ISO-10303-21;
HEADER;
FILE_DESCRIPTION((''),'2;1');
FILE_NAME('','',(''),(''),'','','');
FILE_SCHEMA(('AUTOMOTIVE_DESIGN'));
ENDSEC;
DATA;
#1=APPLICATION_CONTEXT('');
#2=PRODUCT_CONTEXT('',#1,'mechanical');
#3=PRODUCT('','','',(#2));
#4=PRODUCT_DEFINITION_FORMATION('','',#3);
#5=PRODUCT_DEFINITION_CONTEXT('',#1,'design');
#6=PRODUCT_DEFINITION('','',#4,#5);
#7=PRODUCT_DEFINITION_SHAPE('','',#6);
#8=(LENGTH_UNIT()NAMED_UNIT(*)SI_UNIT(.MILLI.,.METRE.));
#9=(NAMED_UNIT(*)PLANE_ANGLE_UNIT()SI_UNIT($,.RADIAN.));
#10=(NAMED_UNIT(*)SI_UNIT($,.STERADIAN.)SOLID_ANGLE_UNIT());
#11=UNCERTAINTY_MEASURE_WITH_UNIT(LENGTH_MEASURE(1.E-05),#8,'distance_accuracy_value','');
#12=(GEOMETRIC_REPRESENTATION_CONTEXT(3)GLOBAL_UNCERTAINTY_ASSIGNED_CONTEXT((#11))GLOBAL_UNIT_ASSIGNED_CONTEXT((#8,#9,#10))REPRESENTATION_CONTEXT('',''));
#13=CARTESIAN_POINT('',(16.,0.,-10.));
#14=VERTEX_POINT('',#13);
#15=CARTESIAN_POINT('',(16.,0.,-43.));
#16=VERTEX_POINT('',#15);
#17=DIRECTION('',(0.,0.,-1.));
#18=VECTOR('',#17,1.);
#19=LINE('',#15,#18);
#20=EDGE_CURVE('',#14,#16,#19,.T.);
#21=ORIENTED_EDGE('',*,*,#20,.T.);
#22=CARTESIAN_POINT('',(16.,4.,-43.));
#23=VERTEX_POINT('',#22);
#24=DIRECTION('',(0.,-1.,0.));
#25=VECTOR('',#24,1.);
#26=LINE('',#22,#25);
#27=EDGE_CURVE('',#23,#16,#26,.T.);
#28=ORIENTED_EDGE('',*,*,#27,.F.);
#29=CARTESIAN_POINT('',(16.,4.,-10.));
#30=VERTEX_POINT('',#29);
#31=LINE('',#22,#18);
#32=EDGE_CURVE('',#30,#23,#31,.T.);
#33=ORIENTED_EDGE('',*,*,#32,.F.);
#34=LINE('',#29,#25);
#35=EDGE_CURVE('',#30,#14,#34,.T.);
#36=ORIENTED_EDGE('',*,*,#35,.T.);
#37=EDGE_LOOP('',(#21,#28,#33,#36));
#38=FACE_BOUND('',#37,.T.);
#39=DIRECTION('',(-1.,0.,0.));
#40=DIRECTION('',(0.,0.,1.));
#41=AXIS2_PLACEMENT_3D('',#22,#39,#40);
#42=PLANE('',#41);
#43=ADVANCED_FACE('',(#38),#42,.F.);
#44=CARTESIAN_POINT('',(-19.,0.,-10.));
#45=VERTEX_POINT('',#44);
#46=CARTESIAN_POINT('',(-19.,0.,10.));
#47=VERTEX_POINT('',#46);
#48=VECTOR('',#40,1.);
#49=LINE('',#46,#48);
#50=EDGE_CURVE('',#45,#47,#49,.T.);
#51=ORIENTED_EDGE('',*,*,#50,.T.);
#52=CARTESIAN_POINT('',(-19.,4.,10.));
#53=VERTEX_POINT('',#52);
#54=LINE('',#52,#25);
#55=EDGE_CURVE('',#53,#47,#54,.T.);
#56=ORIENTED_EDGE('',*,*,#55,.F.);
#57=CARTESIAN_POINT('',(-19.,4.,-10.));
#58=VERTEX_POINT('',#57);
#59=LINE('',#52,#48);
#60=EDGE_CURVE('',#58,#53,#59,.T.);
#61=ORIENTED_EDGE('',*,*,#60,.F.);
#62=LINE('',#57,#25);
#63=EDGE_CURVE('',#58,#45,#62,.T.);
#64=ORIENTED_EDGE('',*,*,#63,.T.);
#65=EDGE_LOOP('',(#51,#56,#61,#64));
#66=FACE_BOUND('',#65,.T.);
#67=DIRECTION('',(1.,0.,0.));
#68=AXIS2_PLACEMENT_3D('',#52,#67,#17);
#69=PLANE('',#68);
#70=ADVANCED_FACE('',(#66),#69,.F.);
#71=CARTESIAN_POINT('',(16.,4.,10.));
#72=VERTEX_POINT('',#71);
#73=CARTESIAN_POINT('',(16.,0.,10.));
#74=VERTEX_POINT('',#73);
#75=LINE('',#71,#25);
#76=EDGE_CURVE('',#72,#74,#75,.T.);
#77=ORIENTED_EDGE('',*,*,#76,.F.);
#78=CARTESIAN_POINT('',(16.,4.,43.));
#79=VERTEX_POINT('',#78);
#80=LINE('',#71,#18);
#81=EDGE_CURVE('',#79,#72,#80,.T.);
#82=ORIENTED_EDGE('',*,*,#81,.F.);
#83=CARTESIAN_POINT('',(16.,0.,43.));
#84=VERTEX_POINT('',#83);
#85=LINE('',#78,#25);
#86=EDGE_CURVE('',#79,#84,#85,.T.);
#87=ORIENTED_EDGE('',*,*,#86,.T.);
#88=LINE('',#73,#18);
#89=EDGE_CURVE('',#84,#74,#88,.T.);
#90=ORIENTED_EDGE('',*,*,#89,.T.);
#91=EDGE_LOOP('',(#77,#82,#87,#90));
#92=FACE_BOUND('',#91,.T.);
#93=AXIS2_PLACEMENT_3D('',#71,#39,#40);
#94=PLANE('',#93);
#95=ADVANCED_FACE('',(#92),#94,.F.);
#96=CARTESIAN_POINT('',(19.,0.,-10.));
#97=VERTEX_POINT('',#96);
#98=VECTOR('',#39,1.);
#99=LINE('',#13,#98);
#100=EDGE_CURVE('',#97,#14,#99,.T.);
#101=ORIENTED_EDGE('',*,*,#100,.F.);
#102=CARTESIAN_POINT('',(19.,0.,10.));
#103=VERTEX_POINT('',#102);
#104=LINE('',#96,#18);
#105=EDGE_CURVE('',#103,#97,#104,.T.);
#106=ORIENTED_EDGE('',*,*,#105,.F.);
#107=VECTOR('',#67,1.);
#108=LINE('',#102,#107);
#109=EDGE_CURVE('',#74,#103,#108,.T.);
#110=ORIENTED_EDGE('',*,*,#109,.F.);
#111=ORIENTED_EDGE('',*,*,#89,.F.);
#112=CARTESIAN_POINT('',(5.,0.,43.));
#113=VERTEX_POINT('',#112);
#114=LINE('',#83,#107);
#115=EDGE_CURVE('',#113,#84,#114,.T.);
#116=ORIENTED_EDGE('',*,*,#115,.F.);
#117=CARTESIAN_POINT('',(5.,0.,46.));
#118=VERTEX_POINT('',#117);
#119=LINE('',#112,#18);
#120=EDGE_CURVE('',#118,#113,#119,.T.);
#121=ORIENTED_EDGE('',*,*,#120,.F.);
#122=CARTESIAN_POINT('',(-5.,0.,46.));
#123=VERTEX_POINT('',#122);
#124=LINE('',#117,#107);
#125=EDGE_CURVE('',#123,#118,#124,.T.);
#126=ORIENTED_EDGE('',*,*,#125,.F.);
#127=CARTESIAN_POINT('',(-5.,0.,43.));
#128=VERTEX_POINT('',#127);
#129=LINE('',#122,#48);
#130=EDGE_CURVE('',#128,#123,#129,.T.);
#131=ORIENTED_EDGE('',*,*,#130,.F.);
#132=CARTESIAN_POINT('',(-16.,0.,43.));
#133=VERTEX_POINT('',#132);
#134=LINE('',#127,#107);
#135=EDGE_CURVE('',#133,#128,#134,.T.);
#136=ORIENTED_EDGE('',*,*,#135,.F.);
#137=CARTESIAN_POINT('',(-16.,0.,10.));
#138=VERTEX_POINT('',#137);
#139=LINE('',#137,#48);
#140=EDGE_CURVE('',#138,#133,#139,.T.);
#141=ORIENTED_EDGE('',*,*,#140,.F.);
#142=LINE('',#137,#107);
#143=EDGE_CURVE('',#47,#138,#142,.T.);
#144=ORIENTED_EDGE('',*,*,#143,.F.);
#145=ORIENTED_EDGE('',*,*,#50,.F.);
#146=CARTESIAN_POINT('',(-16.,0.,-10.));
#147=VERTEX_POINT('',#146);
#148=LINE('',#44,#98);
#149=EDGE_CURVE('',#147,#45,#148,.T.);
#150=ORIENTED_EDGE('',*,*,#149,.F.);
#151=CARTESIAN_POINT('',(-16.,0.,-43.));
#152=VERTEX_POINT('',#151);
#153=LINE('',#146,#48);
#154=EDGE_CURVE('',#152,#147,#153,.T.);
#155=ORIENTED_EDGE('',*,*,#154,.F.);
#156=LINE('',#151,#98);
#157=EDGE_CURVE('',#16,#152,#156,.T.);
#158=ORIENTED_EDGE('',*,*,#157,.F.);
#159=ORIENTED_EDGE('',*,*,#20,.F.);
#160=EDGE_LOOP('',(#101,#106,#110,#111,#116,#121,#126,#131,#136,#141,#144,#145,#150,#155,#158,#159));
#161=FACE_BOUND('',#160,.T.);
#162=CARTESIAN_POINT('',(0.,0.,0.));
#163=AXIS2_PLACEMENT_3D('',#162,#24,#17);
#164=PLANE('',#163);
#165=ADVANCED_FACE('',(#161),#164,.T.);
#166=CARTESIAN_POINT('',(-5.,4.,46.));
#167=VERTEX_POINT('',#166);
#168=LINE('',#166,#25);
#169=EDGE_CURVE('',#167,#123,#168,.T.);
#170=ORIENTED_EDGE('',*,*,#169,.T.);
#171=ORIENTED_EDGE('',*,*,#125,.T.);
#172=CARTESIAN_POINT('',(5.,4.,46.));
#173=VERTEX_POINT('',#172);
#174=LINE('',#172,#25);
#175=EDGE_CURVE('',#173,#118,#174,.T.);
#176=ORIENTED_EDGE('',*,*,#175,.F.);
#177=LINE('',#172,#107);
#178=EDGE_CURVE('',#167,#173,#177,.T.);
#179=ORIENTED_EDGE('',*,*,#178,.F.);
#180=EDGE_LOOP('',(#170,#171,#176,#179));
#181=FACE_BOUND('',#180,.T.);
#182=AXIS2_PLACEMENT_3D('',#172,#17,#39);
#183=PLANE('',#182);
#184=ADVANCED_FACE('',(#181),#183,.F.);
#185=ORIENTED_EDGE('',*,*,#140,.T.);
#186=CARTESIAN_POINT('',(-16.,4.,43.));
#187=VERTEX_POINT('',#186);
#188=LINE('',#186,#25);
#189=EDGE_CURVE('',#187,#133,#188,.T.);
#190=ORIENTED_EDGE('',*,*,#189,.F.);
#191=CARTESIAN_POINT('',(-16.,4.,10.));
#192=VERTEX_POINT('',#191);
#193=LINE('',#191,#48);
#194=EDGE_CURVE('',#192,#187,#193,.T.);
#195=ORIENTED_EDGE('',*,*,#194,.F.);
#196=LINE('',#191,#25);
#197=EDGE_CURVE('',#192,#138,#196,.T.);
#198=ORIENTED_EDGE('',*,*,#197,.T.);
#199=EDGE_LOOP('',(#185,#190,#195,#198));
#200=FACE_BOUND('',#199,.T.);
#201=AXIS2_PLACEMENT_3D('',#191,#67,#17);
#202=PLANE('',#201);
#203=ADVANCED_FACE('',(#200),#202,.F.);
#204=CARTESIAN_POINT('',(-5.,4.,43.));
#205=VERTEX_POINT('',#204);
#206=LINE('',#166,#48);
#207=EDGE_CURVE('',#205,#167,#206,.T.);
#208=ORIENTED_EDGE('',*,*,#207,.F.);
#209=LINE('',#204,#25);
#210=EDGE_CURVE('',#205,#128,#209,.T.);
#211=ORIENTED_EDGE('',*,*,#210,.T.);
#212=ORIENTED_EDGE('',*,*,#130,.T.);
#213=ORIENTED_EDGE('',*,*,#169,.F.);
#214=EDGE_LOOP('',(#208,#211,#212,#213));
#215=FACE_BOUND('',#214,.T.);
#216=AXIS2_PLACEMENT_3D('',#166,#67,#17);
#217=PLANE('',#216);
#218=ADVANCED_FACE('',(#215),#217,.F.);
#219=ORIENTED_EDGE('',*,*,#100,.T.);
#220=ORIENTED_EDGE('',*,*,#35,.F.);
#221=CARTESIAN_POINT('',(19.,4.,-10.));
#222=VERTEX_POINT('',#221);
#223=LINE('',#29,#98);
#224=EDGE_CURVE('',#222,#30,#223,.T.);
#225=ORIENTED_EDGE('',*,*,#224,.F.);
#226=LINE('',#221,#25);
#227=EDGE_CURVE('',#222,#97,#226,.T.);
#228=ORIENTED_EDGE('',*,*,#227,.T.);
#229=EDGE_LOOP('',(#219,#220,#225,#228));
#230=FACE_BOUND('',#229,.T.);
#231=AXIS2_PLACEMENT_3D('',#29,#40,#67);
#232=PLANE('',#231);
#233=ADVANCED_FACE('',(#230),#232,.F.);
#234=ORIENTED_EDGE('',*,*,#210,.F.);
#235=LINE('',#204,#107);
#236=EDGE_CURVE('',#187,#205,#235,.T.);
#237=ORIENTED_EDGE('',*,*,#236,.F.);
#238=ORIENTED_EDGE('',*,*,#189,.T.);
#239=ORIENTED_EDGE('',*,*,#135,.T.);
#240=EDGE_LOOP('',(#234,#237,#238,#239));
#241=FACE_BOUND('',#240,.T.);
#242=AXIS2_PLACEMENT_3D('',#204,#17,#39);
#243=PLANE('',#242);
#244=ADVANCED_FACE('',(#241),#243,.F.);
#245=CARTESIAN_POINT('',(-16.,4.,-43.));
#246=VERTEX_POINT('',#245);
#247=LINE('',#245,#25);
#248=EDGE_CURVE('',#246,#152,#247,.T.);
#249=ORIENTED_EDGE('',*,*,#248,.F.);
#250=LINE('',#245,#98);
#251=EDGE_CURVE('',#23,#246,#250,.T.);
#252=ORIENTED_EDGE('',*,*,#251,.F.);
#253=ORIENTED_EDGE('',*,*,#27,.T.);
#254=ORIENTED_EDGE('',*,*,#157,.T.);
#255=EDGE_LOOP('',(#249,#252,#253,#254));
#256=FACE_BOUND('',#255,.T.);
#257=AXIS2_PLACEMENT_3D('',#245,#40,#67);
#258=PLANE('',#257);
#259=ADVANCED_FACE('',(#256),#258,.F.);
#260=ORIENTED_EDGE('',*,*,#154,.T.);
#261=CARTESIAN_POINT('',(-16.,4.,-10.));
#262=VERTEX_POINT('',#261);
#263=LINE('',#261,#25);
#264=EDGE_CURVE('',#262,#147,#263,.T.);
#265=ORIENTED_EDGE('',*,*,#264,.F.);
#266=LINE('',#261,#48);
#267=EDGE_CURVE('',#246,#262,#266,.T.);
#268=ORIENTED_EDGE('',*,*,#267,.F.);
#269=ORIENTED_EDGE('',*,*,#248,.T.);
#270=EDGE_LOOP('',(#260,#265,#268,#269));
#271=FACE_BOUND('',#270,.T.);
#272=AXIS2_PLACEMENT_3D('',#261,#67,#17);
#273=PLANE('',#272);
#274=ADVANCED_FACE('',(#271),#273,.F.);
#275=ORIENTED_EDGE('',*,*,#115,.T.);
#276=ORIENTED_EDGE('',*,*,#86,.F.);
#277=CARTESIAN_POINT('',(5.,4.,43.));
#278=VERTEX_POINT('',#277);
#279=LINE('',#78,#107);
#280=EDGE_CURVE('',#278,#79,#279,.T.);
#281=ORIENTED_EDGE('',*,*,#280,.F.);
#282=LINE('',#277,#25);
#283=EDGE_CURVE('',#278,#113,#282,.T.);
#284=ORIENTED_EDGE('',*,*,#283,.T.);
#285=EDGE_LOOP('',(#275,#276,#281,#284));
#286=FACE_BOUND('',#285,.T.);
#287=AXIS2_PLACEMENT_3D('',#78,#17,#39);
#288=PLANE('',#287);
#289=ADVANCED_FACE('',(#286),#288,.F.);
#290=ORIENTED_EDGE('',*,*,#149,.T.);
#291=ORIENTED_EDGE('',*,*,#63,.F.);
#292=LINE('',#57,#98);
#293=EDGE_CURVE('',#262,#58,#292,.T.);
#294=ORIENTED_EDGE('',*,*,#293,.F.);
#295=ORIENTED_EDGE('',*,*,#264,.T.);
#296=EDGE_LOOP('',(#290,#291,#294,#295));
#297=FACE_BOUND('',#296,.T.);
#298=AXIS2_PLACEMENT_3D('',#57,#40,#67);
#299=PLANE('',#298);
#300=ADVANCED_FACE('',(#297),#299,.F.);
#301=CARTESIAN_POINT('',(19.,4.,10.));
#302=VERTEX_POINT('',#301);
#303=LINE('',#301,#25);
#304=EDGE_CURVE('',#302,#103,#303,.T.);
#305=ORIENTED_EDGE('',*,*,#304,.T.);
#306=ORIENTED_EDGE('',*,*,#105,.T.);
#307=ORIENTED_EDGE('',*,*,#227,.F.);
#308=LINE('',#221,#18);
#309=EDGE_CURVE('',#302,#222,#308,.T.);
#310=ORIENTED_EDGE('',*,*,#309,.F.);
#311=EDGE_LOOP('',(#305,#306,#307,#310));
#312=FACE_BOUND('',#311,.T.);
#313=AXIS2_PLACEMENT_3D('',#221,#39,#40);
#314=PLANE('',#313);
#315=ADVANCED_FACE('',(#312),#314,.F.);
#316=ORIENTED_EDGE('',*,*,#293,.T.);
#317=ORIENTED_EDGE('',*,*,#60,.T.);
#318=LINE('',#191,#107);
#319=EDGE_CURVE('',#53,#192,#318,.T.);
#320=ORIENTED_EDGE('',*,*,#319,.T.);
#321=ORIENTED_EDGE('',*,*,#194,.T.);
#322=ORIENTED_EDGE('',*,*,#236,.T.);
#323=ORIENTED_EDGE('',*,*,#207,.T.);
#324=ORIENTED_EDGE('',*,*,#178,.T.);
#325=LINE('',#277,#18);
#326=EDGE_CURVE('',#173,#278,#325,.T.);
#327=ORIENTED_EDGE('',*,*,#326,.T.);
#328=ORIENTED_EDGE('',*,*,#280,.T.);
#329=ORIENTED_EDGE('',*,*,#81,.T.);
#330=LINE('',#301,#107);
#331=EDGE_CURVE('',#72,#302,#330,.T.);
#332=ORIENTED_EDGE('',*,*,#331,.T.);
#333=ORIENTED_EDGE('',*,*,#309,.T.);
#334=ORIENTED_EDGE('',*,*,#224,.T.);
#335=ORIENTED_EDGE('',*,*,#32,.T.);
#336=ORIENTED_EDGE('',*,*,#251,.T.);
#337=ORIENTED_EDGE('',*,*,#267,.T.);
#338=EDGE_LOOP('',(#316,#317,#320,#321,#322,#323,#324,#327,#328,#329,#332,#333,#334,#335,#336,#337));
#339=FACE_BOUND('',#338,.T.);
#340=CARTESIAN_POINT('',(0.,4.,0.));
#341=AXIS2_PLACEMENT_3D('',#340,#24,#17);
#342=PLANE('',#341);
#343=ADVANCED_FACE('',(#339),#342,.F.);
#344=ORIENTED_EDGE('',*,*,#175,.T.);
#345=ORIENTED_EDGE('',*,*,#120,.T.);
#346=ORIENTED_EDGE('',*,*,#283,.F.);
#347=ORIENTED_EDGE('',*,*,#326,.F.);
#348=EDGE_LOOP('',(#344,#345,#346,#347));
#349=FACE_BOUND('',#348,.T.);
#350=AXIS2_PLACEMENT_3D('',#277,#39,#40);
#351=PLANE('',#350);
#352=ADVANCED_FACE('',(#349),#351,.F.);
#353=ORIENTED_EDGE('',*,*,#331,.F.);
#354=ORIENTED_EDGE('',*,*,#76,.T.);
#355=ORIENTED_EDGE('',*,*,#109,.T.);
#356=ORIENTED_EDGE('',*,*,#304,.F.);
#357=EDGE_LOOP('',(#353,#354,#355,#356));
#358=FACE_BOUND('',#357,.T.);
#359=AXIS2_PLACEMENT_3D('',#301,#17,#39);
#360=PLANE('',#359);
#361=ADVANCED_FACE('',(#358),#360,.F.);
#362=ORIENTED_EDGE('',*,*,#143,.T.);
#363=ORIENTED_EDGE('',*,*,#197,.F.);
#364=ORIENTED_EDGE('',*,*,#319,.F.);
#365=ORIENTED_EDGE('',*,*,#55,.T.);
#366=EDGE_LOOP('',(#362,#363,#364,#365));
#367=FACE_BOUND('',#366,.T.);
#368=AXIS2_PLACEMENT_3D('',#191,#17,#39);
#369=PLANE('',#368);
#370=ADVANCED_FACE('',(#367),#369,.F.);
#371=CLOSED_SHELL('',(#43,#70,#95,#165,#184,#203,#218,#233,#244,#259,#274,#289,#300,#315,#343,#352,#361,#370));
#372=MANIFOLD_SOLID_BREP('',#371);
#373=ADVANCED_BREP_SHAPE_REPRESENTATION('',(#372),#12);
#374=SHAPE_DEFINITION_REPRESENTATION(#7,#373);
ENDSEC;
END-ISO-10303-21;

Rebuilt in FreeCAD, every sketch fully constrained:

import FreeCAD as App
import Part
import Sketcher

V = App.Vector


def add_polygon(sketch, points):
    """Adds a closed chain of lines whose ends are joined by coincident constraints."""
    first, n = sketch.GeometryCount, len(points)
    for a, b in zip(points, points[1:] + points[:1]):
        sketch.addGeometry(Part.LineSegment(App.Vector(*a, 0), App.Vector(*b, 0)), False)
    for i in range(n):
        sketch.addConstraint(Sketcher.Constraint("Coincident", first + i, 2, first + (i + 1) % n, 1))

doc = App.newDocument("Part")
params = doc.addObject("Spreadsheet::Sheet", "Params")
for row, (alias, value) in enumerate([
    ("sketch1_width", "11 mm"),
    ("sketch1_width2", "10 mm"),
    ("sketch1_width3", "3 mm"),
    ("sketch1_height", "33 mm"),
    ("sketch1_height2", "20 mm"),
    ("pad1_length", "4 mm"),
], start=1):
    params.set(f"A{row}", alias)
    params.set(f"B{row}", "=" + value)
    params.setAlias(f"B{row}", alias)

body = doc.addObject("PartDesign::Body", "Body")

# Sketch on XZ plane
sketch1 = doc.addObject("Sketcher::SketchObject", "Sketch")
body.addObject(sketch1)
sketch1.AttachmentSupport = (doc.XZ_Plane, [""])
sketch1.MapMode = "FlatFace"
add_polygon(sketch1, [(-16, 10), (-16, 43), (-5, 43), (-5, 46), (5, 46), (5, 43), (16, 43), (16, 10), (19, 10), (19, -10), (16, -10), (16, -43), (-16, -43), (-16, -10), (-19, -10), (-19, 10)])  # lines 0-15
sketch1.addConstraint(Sketcher.Constraint("Vertical", 0))
sketch1.addConstraint(Sketcher.Constraint("Horizontal", 1))
sketch1.addConstraint(Sketcher.Constraint("Vertical", 2))
sketch1.addConstraint(Sketcher.Constraint("Horizontal", 3))
sketch1.addConstraint(Sketcher.Constraint("Vertical", 4))
sketch1.addConstraint(Sketcher.Constraint("Horizontal", 5))
sketch1.addConstraint(Sketcher.Constraint("Vertical", 6))
sketch1.addConstraint(Sketcher.Constraint("Horizontal", 7))
sketch1.addConstraint(Sketcher.Constraint("Vertical", 8))
sketch1.addConstraint(Sketcher.Constraint("Horizontal", 9))
sketch1.addConstraint(Sketcher.Constraint("Vertical", 10))
sketch1.addConstraint(Sketcher.Constraint("Horizontal", 11))
sketch1.addConstraint(Sketcher.Constraint("Vertical", 12))
sketch1.addConstraint(Sketcher.Constraint("Horizontal", 13))
sketch1.addConstraint(Sketcher.Constraint("Vertical", 14))
sketch1.addConstraint(Sketcher.Constraint("Horizontal", 15))
sketch1.addConstraint(Sketcher.Constraint("Symmetric", 0, 2, 10, 2, -1, 1))
sketch1.addConstraint(Sketcher.Constraint("Symmetric", 5, 2, 11, 2, -1, 1))
sketch1.addConstraint(Sketcher.Constraint("Symmetric", 7, 2, 13, 2, -1, 1))
sketch1.addConstraint(Sketcher.Constraint("Symmetric", 9, 2, 12, 2, -2))
sketch1.addConstraint(Sketcher.Constraint("Horizontal", 7, 2, 14, 2))
sketch1.addConstraint(Sketcher.Constraint("Equal", 1, 5))
sketch1.addConstraint(Sketcher.Constraint("Equal", 15, 2))
sketch1.addConstraint(Sketcher.Constraint("DistanceX", 1, 1, 1, 2, 11.0))
sketch1.addConstraint(Sketcher.Constraint("DistanceX", 3, 1, 3, 2, 10.0))
sketch1.addConstraint(Sketcher.Constraint("DistanceX", 7, 1, 7, 2, 3.0))
sketch1.addConstraint(Sketcher.Constraint("DistanceY", 0, 1, 0, 2, 33.0))
sketch1.addConstraint(Sketcher.Constraint("DistanceY", 8, 2, 8, 1, 20.0))
sketch1.setExpression("Constraints[39]", "Params.sketch1_width")
sketch1.setExpression("Constraints[40]", "Params.sketch1_width2")
sketch1.setExpression("Constraints[41]", "Params.sketch1_width3")
sketch1.setExpression("Constraints[42]", "Params.sketch1_height")
sketch1.setExpression("Constraints[43]", "Params.sketch1_height2")
pad1 = doc.addObject("PartDesign::Pad", "Pad")
body.addObject(pad1)
pad1.Profile = sketch1
pad1.setExpression("Length", "Params.pad1_length")
pad1.Reversed = True

doc.recompute()
